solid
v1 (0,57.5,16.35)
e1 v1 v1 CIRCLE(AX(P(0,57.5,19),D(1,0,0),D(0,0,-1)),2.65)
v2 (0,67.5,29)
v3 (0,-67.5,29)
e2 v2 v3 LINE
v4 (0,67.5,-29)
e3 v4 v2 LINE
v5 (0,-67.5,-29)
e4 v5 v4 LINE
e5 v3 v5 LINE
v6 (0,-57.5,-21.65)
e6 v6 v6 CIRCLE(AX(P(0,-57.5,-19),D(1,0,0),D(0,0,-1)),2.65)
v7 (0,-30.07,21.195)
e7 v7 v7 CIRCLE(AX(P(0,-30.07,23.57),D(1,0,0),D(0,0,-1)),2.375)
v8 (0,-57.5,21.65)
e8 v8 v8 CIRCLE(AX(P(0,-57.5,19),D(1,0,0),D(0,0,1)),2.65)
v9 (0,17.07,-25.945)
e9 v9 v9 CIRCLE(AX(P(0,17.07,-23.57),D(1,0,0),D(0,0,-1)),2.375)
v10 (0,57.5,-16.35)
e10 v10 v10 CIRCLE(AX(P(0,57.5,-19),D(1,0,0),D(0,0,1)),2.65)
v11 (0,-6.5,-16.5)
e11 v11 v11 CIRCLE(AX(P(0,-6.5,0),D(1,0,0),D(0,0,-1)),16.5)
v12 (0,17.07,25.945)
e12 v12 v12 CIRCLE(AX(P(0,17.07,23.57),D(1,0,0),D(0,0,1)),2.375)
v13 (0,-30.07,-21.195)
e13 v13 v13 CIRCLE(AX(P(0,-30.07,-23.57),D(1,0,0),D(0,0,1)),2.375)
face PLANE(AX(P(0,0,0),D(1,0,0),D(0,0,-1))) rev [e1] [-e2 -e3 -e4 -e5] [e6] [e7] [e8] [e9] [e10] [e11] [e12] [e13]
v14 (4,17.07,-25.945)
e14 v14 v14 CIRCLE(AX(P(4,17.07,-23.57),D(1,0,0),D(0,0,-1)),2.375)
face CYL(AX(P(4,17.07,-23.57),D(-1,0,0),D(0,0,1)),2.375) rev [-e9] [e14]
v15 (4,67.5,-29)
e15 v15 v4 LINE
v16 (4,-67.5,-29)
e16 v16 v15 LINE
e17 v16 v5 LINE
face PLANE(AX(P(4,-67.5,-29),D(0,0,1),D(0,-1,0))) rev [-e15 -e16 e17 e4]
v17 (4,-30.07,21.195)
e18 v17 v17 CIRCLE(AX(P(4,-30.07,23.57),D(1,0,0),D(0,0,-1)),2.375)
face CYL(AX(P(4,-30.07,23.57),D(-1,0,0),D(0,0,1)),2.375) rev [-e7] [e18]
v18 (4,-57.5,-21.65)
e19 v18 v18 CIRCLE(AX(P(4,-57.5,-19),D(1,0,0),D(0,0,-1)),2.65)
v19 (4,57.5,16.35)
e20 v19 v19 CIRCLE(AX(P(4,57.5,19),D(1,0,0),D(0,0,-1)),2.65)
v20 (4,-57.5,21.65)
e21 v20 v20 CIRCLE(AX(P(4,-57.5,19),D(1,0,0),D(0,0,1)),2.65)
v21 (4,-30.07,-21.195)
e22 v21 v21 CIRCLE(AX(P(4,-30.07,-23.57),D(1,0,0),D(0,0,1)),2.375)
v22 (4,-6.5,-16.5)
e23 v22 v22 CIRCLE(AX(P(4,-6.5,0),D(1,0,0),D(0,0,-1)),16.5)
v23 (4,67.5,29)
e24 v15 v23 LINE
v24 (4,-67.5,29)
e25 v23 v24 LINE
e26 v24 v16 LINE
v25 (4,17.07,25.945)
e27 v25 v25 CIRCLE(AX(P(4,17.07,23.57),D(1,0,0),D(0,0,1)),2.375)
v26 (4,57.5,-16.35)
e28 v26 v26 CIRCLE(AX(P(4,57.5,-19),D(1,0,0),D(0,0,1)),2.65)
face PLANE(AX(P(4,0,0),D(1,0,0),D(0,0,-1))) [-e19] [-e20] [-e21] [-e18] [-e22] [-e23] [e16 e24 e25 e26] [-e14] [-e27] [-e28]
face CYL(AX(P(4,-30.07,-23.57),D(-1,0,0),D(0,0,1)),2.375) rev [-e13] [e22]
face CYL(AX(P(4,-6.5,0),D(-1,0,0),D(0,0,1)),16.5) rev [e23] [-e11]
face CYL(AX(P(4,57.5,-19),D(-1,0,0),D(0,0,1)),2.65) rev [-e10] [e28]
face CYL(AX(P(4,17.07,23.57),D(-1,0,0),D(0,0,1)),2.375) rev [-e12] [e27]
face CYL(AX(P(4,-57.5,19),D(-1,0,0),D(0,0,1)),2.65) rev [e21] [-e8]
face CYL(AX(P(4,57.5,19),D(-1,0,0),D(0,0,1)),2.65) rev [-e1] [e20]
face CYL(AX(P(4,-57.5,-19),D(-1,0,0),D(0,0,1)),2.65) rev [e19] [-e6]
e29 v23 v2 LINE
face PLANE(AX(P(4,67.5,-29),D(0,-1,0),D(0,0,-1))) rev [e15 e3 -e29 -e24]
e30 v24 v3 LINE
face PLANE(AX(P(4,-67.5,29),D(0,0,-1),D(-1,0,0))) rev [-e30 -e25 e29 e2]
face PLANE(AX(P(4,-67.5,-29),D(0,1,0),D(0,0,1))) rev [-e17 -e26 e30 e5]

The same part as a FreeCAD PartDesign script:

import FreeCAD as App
import Part
import Sketcher

V = App.Vector
Q = App.Units.Quantity


def add_polygon(sketch, points):
    """Adds a closed chain of lines whose ends are joined by coincident constraints."""
    first, n = sketch.GeometryCount, len(points)
    for a, b in zip(points, points[1:] + points[:1]):
        sketch.addGeometry(Part.LineSegment(App.Vector(*a, 0), App.Vector(*b, 0)), False)
    for i in range(n):
        sketch.addConstraint(Sketcher.Constraint("Coincident", first + i, 2, first + (i + 1) % n, 1))

doc = App.newDocument("Part")
body = doc.addObject("PartDesign::Body", "Body")

# Sketch on YZ plane
sketch1 = body.newObject("Sketcher::SketchObject", "Sketch")
sketch1.AttachmentSupport = (doc.getObject("YZ_Plane"), [""])
sketch1.MapMode = "FlatFace"
add_polygon(sketch1, [(67.5, 29), (-67.5, 29), (-67.5, -29), (67.5, -29)])  # lines 0-3
sketch1.addGeometry(Part.Circle(V(-57.5, 19, 0), V(0, 0, 1), 2.6), False)  # 4
sketch1.addGeometry(Part.Circle(V(-30.1, 23.6, 0), V(0, 0, 1), 2.4), False)  # 5
sketch1.addGeometry(Part.Circle(V(-6.5, 0, 0), V(0, 0, 1), 16.5), False)  # 6
sketch1.addGeometry(Part.Circle(V(-57.5, -19, 0), V(0, 0, 1), 2.6), False)  # 7
sketch1.addGeometry(Part.Circle(V(-30.1, -23.6, 0), V(0, 0, 1), 2.4), False)  # 8
sketch1.addGeometry(Part.Circle(V(17.1, 23.6, 0), V(0, 0, 1), 2.4), False)  # 9
sketch1.addGeometry(Part.Circle(V(57.5, 19, 0), V(0, 0, 1), 2.6), False)  # 10
sketch1.addGeometry(Part.Circle(V(17.1, -23.6, 0), V(0, 0, 1), 2.4), False)  # 11
sketch1.addGeometry(Part.Circle(V(57.5, -19, 0), V(0, 0, 1), 2.6), False)  # 12
sketch1.addConstraint([
    Sketcher.Constraint("Horizontal", 0),
    Sketcher.Constraint("Vertical", 1),
    Sketcher.Constraint("Horizontal", 2),
    Sketcher.Constraint("Vertical", 3),
    Sketcher.Constraint("Equal", 4, 7),
    Sketcher.Constraint("Equal", 5, 8),
    Sketcher.Constraint("Equal", 8, 9),
    Sketcher.Constraint("Equal", 7, 10),
    Sketcher.Constraint("Equal", 9, 11),
    Sketcher.Constraint("Equal", 10, 12),
    Sketcher.Constraint("Symmetric", 7, 3, 10, 3, -1, 1),
    Sketcher.Constraint("Symmetric", 4, 3, 12, 3, -1, 1),
    Sketcher.Constraint("Symmetric", 0, 2, 2, 2, -1, 1),
    Sketcher.Constraint("Symmetric", 4, 3, 10, 3, -2),
    Sketcher.Constraint("Symmetric", 5, 3, 8, 3, -1),
    Sketcher.Constraint("Symmetric", 9, 3, 11, 3, -1),
    Sketcher.Constraint("PointOnObject", 6, 3, -1),
    Sketcher.Constraint("Horizontal", 5, 3, 9, 3),
    Sketcher.Constraint("Diameter", 6, Q("33 mm")),
    Sketcher.Constraint("Diameter", 4, Q("5.3 mm")),
    Sketcher.Constraint("Diameter", 5, Q("4.75 mm")),
    Sketcher.Constraint("DistanceX", 0, 2, 0, 1, Q("135 mm")),
    Sketcher.Constraint("DistanceY", 1, 2, 1, 1, Q("58 mm")),
    Sketcher.Constraint("DistanceY", -1, 1, 4, 3, Q("19 mm")),
    Sketcher.Constraint("DistanceX", 4, 3, 6, 3, Q("51 mm")),
    Sketcher.Constraint("DistanceX", 6, 3, 10, 3, Q("64 mm")),
    Sketcher.Constraint("DistanceX", 5, 3, -1, 1, Q("30.07 mm")),
    Sketcher.Constraint("DistanceY", -1, 1, 5, 3, Q("23.57 mm")),
    Sketcher.Constraint("DistanceX", -1, 1, 9, 3, Q("17.07 mm")),
])
pad1 = body.newObject("PartDesign::Pad", "Pad")
pad1.Profile = sketch1
pad1.Length = 4

doc.recompute()
